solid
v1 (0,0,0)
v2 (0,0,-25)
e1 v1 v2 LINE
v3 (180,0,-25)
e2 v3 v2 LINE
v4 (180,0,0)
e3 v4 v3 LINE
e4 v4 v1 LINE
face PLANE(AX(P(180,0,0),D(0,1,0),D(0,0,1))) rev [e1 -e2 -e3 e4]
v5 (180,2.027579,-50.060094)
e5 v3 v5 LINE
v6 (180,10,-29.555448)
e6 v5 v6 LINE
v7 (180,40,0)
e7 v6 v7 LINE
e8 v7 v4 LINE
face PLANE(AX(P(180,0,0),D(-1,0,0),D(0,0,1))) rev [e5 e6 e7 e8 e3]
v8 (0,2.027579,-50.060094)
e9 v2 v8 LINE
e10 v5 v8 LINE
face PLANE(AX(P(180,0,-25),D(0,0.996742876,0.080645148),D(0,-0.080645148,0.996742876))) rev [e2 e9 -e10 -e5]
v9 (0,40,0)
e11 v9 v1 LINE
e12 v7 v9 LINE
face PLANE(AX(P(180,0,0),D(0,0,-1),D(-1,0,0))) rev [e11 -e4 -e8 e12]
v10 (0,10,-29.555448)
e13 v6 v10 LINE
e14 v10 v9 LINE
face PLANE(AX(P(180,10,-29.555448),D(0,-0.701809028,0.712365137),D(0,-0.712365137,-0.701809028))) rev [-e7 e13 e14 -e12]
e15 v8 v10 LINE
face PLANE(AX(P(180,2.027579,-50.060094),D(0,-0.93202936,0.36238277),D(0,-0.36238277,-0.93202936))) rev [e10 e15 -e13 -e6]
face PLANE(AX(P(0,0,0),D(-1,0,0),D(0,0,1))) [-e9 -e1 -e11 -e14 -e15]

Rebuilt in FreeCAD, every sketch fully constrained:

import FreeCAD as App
import Part
import Sketcher

V = App.Vector
Q = App.Units.Quantity


def add_polygon(sketch, points):
    """Adds a closed chain of lines whose ends are joined by coincident constraints."""
    first, n = sketch.GeometryCount, len(points)
    for a, b in zip(points, points[1:] + points[:1]):
        sketch.addGeometry(Part.LineSegment(App.Vector(*a, 0), App.Vector(*b, 0)), False)
    for i in range(n):
        sketch.addConstraint(Sketcher.Constraint("Coincident", first + i, 2, first + (i + 1) % n, 1))

doc = App.newDocument("Part")
body = doc.addObject("PartDesign::Body", "Body")

sketch1 = doc.addObject("Sketcher::SketchObject", "Sketch")
body.addObject(sketch1)
sketch1.AttachmentSupport = (doc.YZ_Plane, [""])
sketch1.MapMode = "FlatFace"
add_polygon(sketch1, [(40, 0), (0, 0), (0, -25), (2, -50), (10, -30)])
sketch1.addConstraint([
    Sketcher.Constraint("Horizontal", 0),
    Sketcher.Constraint("Vertical", 1),
    Sketcher.Constraint("Coincident", 0, 2, -1, 1),
    Sketcher.Constraint("DistanceX", 0, 2, 0, 1, Q("40 mm")),
    Sketcher.Constraint("DistanceY", 1, 2, 1, 1, Q("25 mm")),
    Sketcher.Constraint("Distance", 3, Q("22 mm")),
    Sketcher.Constraint("DistanceX", -1, 1, 3, 2, Q("10 mm")),
    Sketcher.Constraint("DistanceX", -1, 1, 2, 2, Q("2.027579 mm")),
    Sketcher.Constraint("DistanceY", 3, 2, -1, 1, Q("29.555448 mm")),
])
pad1 = doc.addObject("PartDesign::Pad", "Pad")
body.addObject(pad1)
pad1.Profile = sketch1
pad1.Length = 180

doc.recompute()
